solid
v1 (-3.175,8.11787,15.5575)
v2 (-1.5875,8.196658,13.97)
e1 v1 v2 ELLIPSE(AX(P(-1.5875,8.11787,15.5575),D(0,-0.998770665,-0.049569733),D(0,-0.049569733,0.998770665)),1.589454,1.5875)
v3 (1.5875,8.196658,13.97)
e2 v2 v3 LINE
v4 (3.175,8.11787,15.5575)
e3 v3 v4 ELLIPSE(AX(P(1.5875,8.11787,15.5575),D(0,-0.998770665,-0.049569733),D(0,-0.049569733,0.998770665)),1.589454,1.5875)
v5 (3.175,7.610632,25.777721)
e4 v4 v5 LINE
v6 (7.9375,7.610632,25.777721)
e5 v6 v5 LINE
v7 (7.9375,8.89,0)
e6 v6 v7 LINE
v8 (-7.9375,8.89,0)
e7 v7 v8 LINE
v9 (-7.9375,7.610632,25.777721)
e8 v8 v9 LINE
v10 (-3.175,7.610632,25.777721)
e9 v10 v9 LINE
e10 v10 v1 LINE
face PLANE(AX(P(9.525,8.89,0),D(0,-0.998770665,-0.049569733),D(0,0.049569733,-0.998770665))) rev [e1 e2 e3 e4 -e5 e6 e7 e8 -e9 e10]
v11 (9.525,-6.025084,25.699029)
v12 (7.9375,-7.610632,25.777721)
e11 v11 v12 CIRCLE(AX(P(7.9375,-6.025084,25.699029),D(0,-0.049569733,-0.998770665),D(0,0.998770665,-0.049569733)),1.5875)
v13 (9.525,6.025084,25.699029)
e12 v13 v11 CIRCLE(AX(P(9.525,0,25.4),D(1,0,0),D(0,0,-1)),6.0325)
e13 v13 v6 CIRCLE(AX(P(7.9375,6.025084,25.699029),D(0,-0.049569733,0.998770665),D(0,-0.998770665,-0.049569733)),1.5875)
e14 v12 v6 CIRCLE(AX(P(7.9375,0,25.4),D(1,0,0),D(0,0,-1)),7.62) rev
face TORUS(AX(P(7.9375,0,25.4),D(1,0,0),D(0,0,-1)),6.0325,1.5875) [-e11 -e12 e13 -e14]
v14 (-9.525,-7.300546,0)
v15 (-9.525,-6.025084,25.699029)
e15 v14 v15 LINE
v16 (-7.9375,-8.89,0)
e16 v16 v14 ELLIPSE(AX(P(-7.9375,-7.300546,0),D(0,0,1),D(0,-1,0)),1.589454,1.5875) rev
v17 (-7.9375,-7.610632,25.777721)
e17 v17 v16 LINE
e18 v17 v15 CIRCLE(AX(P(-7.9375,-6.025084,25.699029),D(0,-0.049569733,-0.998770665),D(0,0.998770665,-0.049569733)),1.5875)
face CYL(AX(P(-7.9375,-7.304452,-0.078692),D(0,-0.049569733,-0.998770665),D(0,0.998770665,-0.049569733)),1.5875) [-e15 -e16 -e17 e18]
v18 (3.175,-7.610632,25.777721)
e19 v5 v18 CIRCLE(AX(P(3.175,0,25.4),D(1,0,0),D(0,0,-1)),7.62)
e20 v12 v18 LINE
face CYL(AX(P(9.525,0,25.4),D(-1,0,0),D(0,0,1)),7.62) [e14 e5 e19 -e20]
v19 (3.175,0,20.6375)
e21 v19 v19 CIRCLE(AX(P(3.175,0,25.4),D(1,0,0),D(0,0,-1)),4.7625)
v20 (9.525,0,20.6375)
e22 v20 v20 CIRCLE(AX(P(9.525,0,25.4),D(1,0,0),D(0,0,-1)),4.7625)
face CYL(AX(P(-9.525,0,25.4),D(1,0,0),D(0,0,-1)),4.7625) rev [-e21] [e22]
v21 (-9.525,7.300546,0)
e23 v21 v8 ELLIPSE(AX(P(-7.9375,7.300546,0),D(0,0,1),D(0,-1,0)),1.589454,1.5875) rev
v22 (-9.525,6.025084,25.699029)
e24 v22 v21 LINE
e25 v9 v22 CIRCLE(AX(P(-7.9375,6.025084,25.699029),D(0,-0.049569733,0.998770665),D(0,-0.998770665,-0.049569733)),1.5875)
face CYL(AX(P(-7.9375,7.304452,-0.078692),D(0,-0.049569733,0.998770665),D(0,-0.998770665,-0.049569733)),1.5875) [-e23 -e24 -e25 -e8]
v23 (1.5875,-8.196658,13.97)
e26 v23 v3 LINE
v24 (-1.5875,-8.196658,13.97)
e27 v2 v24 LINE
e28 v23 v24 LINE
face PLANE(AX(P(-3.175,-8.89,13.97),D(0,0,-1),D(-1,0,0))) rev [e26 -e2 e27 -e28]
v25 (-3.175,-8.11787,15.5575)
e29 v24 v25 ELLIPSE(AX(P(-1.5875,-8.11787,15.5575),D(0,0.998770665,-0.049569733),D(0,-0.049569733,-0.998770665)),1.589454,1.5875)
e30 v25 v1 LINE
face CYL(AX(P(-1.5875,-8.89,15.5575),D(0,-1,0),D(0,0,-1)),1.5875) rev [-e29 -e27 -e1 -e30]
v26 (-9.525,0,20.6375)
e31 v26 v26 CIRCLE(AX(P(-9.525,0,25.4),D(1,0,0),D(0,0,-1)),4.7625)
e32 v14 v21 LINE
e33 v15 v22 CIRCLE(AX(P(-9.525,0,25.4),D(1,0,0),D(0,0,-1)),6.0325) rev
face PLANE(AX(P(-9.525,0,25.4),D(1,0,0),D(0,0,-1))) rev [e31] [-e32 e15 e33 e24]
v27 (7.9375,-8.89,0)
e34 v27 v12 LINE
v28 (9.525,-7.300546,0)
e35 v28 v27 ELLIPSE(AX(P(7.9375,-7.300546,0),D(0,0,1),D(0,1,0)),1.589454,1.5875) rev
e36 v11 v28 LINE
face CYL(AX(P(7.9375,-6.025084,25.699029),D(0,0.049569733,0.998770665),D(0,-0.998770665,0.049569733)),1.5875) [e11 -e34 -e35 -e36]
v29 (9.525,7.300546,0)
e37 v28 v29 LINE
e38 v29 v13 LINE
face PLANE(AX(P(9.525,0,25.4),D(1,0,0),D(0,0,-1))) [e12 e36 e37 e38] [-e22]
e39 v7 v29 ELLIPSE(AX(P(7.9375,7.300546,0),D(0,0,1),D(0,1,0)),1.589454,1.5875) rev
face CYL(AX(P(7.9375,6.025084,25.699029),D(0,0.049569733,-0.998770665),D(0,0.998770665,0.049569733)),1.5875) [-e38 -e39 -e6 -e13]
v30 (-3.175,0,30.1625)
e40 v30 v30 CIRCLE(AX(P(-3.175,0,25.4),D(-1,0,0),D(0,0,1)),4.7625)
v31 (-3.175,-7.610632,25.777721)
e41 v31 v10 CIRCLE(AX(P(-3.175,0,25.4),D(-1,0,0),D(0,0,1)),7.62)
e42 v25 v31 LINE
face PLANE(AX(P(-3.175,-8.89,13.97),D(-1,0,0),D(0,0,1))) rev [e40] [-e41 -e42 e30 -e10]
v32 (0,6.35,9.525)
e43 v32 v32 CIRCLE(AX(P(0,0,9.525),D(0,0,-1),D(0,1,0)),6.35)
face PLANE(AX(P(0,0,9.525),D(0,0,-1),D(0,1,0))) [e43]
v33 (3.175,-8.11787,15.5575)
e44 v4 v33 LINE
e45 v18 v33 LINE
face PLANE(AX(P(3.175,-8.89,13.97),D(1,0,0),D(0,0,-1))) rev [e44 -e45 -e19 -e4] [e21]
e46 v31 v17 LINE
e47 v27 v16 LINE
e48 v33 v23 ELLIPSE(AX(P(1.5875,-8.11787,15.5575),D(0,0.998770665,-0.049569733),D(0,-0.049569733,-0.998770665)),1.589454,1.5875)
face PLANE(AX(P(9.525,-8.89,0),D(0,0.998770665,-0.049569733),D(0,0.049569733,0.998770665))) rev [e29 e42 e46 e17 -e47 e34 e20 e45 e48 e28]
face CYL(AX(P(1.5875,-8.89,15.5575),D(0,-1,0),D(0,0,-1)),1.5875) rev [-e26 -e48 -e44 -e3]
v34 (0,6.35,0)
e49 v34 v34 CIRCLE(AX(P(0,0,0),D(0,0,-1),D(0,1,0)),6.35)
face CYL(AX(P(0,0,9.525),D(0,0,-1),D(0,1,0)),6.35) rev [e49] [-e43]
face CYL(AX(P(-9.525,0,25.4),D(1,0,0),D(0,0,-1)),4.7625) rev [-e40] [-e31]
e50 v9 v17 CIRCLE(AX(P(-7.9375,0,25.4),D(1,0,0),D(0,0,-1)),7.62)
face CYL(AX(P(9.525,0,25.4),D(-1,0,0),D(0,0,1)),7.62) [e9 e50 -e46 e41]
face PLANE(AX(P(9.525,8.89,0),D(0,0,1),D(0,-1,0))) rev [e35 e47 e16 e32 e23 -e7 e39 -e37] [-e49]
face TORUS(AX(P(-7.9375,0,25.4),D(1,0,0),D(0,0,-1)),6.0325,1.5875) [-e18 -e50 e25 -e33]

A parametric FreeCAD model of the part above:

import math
import FreeCAD as App
import Part
import Sketcher

V = App.Vector
Q = App.Units.Quantity


def edges_at(feature, points):
    """Names of the edges that pass closest to the given points."""
    edges = feature.Shape.Edges
    near = lambda p: min(range(len(edges)), key=lambda i: edges[i].distToShape(Part.Vertex(*p))[0])
    return sorted({f"Edge{near(p) + 1}" for p in points})


def add_polygon(sketch, points):
    """Adds a closed chain of lines whose ends are joined by coincident constraints."""
    first, n = sketch.GeometryCount, len(points)
    for a, b in zip(points, points[1:] + points[:1]):
        sketch.addGeometry(Part.LineSegment(App.Vector(*a, 0), App.Vector(*b, 0)), False)
    for i in range(n):
        sketch.addConstraint(Sketcher.Constraint("Coincident", first + i, 2, first + (i + 1) % n, 1))

doc = App.newDocument("Part")
body = doc.addObject("PartDesign::Body", "Body")

sketch1 = doc.addObject("Sketcher::SketchObject", "Sketch")
body.addObject(sketch1)
sketch1.AttachmentSupport = (doc.YZ_Plane, [""])
sketch1.MapMode = "FlatFace"
sketch1.addGeometry(Part.LineSegment(V(9, 0, 0), V(8, 26, 0)), False)
sketch1.addGeometry(Part.ArcOfCircle(Part.Circle(V(0, 25, 0), V(0, 0, 1), 8), math.radians(3), math.radians(177)), False)
sketch1.addGeometry(Part.LineSegment(V(-8, 26, 0), V(-9, 0, 0)), False)
sketch1.addGeometry(Part.LineSegment(V(-9, 0, 0), V(9, 0, 0)), False)
sketch1.addConstraint(Sketcher.Constraint("Tangent", 0, 2, 1, 1))
sketch1.addConstraint(Sketcher.Constraint("Tangent", 1, 2, 2, 1))
sketch1.addConstraint(Sketcher.Constraint("Coincident", 2, 2, 3, 1))
sketch1.addConstraint(Sketcher.Constraint("Coincident", 3, 2, 0, 1))
sketch1.addConstraint(Sketcher.Constraint("Horizontal", 3))
sketch1.addConstraint(Sketcher.Constraint("Symmetric", 2, 2, 3, 2, -1, 1))
sketch1.addConstraint(Sketcher.Constraint("PointOnObject", 1, 3, -2))
sketch1.addConstraint(Sketcher.Constraint("Radius", 1, Q("0.3 in")))
sketch1.addConstraint(Sketcher.Constraint("DistanceX", 3, 1, 3, 2, Q("0.7 in")))
sketch1.addConstraint(Sketcher.Constraint("DistanceY", -1, 1, 1, 3, Q("1 in")))
pad1 = doc.addObject("PartDesign::Pad", "Pad")
body.addObject(pad1)
pad1.Profile = sketch1
pad1.Length = Q("0.75 in")
pad1.Midplane = True

sketch2 = doc.addObject("Sketcher::SketchObject", "Sketch001")
body.addObject(sketch2)
sketch2.AttachmentSupport = (doc.XZ_Plane, [""])
sketch2.MapMode = "FlatFace"
add_polygon(sketch2, [(-3, 14), (-3, 33), (3, 33), (3, 14)])
sketch2.addConstraint(Sketcher.Constraint("Vertical", 0))
sketch2.addConstraint(Sketcher.Constraint("Horizontal", 1))
sketch2.addConstraint(Sketcher.Constraint("Vertical", 2))
sketch2.addConstraint(Sketcher.Constraint("Horizontal", 3))
sketch2.addConstraint(Sketcher.Constraint("DistanceX", 1, 1, 1, 2, Q("0.25 in")))
sketch2.addConstraint(Sketcher.Constraint("DistanceY", 0, 1, 0, 2, Q("0.75 in")))
sketch2.addConstraint(Sketcher.Constraint("DistanceY", -1, 1, 0, 2, Q("1.3 in")))
sketch2.addConstraint(Sketcher.Constraint("DistanceX", 0, 2, -1, 1, Q("0.125 in")))
pocket1 = doc.addObject("PartDesign::Pocket", "Pocket")
body.addObject(pocket1)
pocket1.Profile = sketch2
pocket1.Type = "ThroughAll"
pocket1.Midplane = True

sketch3 = doc.addObject("Sketcher::SketchObject", "Sketch002")
body.addObject(sketch3)
sketch3.AttachmentSupport = (doc.YZ_Plane, [""])
sketch3.MapMode = "FlatFace"
sketch3.AttachmentOffset = App.Placement(V(0, 0, 0.375 * 25.4), App.Rotation())
sketch3.addGeometry(Part.Circle(V(0, 25.4, 0), V(0, 0, 1), 4.8), False)
sketch3.addConstraint(Sketcher.Constraint("PointOnObject", 0, 3, -2))
sketch3.addConstraint(Sketcher.Constraint("Diameter", 0, Q("0.375 in")))
sketch3.addConstraint(Sketcher.Constraint("DistanceY", -1, 1, 0, 3, Q("1 in")))
pocket2 = doc.addObject("PartDesign::Pocket", "Pocket001")
body.addObject(pocket2)
pocket2.Profile = sketch3
pocket2.Type = "ThroughAll"

sketch4 = doc.addObject("Sketcher::SketchObject", "Sketch003")
body.addObject(sketch4)
sketch4.AttachmentSupport = (doc.XY_Plane, [""])
sketch4.MapMode = "FlatFace"
sketch4.addGeometry(Part.Circle(V(0, 0, 0), V(0, 0, 1), 6), False)
sketch4.addConstraint(Sketcher.Constraint("Coincident", 0, 3, -1, 1))
sketch4.addConstraint(Sketcher.Constraint("Diameter", 0, Q("0.5 in")))
pocket3 = doc.addObject("PartDesign::Pocket", "Pocket002")
body.addObject(pocket3)
pocket3.Profile = sketch4
pocket3.Length = Q("0.375 in")
pocket3.Reversed = True
doc.recompute()

fillet = doc.addObject("PartDesign::Fillet", "Fillet")
body.addObject(fillet)
fillet.Base = (pocket3, edges_at(pocket3, [
    (9.525, 0, 33.02),
    (9.525, -8.25, 12.889),
    (-3.175, 0, 13.97),
    (3.175, 0, 13.97),
    (-9.525, -8.25, 12.889),
    (-9.525, 0, 33.02),
    (-9.525, 8.25, 12.889),
    (9.525, 8.25, 12.889),
]))
fillet.Radius = Q("0.0625 in")

doc.recompute()
